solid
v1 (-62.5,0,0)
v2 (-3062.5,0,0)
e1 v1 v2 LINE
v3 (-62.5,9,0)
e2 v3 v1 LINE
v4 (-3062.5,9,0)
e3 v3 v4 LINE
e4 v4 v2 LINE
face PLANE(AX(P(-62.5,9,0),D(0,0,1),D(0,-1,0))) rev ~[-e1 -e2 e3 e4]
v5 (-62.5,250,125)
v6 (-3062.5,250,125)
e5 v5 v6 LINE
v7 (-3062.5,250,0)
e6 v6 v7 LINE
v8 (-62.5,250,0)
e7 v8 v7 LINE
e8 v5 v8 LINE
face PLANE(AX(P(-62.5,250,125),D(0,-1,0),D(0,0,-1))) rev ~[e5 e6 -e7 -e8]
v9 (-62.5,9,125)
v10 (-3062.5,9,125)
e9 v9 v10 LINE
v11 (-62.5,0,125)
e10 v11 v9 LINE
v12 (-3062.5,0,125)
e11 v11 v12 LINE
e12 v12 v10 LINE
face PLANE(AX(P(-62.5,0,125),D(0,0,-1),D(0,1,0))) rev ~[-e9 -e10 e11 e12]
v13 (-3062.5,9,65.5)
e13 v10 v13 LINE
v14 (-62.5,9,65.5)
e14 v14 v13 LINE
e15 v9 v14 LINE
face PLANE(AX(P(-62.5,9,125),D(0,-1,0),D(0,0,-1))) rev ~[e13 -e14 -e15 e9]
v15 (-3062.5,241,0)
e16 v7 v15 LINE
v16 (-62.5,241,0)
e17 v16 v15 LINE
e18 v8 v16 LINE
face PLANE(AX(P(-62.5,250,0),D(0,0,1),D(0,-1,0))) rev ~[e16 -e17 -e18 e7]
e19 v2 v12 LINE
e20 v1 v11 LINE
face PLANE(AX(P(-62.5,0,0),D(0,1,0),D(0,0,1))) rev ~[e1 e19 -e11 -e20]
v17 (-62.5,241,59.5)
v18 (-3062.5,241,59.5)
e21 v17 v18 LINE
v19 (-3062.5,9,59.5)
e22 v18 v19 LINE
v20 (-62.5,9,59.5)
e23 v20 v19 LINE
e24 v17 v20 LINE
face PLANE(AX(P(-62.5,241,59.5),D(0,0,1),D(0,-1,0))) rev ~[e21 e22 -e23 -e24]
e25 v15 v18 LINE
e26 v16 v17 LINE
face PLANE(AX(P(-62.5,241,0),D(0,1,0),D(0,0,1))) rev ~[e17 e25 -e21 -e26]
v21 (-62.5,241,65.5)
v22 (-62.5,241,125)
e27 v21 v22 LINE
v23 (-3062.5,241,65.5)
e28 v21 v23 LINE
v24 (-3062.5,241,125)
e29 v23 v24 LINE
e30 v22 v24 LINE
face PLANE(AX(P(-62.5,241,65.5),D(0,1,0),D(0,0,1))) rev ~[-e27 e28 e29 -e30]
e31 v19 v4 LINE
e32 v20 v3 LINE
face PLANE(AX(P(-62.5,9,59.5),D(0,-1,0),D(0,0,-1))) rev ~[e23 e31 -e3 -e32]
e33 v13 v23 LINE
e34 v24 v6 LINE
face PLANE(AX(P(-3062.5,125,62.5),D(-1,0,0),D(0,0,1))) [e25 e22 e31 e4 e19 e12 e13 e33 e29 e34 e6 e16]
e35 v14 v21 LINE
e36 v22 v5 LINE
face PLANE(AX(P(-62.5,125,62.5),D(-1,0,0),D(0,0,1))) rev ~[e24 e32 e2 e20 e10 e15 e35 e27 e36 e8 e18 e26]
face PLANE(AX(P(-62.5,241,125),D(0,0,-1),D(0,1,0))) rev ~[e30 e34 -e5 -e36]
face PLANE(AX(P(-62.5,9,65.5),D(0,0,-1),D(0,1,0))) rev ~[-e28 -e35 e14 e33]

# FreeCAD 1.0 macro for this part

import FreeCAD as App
import Part
import Sketcher
Q = App.Units.Quantity

doc = App.newDocument("Part")
body = doc.addObject("PartDesign::Body", "Body")

# Sketch on XY plane
sketch1 = body.newObject("Sketcher::SketchObject", "Sketch")
sketch1.AttachmentSupport = (doc.getObject("XY_Plane"), [""])
sketch1.MapMode = "FlatFace"
sketch1.addGeometry([
    Part.LineSegment(App.Vector(62, 250, 0), App.Vector(-62, 250, 0)),  # 0
    Part.LineSegment(App.Vector(-62, 250, 0), App.Vector(-62, 241, 0)),  # 1
    Part.LineSegment(App.Vector(-62, 241, 0), App.Vector(-3, 241, 0)),  # 2
    Part.LineSegment(App.Vector(-3, 241, 0), App.Vector(-3, 9, 0)),  # 3
    Part.LineSegment(App.Vector(-3, 9, 0), App.Vector(-62, 9, 0)),  # 4
    Part.LineSegment(App.Vector(-62, 9, 0), App.Vector(-62, 0, 0)),  # 5
    Part.LineSegment(App.Vector(-62, 0, 0), App.Vector(62, 0, 0)),  # 6
    Part.LineSegment(App.Vector(62, 0, 0), App.Vector(62, 9, 0)),  # 7
    Part.LineSegment(App.Vector(62, 9, 0), App.Vector(3, 9, 0)),  # 8
    Part.LineSegment(App.Vector(3, 9, 0), App.Vector(3, 241, 0)),  # 9
    Part.LineSegment(App.Vector(3, 241, 0), App.Vector(62, 241, 0)),  # 10
    Part.LineSegment(App.Vector(62, 241, 0), App.Vector(62, 250, 0)),  # 11
], False)
sketch1.addConstraint([
    Sketcher.Constraint("Coincident", 0, 2, 1, 1),
    Sketcher.Constraint("Coincident", 1, 2, 2, 1),
    Sketcher.Constraint("Coincident", 2, 2, 3, 1),
    Sketcher.Constraint("Coincident", 3, 2, 4, 1),
    Sketcher.Constraint("Coincident", 4, 2, 5, 1),
    Sketcher.Constraint("Coincident", 5, 2, 6, 1),
    Sketcher.Constraint("Coincident", 6, 2, 7, 1),
    Sketcher.Constraint("Coincident", 7, 2, 8, 1),
    Sketcher.Constraint("Coincident", 8, 2, 9, 1),
    Sketcher.Constraint("Coincident", 9, 2, 10, 1),
    Sketcher.Constraint("Coincident", 10, 2, 11, 1),
    Sketcher.Constraint("Coincident", 11, 2, 0, 1),
    Sketcher.Constraint("Horizontal", 0),
    Sketcher.Constraint("Vertical", 1),
    Sketcher.Constraint("Horizontal", 2),
    Sketcher.Constraint("Vertical", 3),
    Sketcher.Constraint("Horizontal", 4),
    Sketcher.Constraint("Vertical", 5),
    Sketcher.Constraint("Horizontal", 6),
    Sketcher.Constraint("Vertical", 7),
    Sketcher.Constraint("Horizontal", 8),
    Sketcher.Constraint("Vertical", 9),
    Sketcher.Constraint("Horizontal", 10),
    Sketcher.Constraint("Vertical", 11),
    Sketcher.Constraint("Symmetric", 5, 2, 6, 2, -1, 1),
    Sketcher.Constraint("Symmetric", 3, 2, 8, 2, -2),
    Sketcher.Constraint("Symmetric", 1, 2, 10, 2, -2),
    Sketcher.Constraint("Vertical", 1, 2, 4, 2),
    Sketcher.Constraint("Equal", 1, 5),
    Sketcher.Constraint("DistanceX", 0, 2, 0, 1, Q("125 mm")),
    Sketcher.Constraint("DistanceY", 1, 2, 1, 1, Q("9 mm")),
    Sketcher.Constraint("DistanceY", 3, 2, 3, 1, Q("232 mm")),
    Sketcher.Constraint("DistanceX", 2, 1, 2, 2, Q("59.5 mm")),
])
pad1 = body.newObject("PartDesign::Pad", "Pad")
pad1.Profile = sketch1
pad1.Length = 3000
body2 = doc.addObject("PartDesign::Body", "Body001")
doc.recompute()

body.Placement = App.Placement(App.Vector(-62.5, 0, 62.5), App.Rotation(App.Vector(0, -1, 0), 90))
boolean = body2.newObject("PartDesign::Boolean", "Boolean")
boolean.Type = "Fuse"
boolean.addObjects([body])

doc.recompute()
